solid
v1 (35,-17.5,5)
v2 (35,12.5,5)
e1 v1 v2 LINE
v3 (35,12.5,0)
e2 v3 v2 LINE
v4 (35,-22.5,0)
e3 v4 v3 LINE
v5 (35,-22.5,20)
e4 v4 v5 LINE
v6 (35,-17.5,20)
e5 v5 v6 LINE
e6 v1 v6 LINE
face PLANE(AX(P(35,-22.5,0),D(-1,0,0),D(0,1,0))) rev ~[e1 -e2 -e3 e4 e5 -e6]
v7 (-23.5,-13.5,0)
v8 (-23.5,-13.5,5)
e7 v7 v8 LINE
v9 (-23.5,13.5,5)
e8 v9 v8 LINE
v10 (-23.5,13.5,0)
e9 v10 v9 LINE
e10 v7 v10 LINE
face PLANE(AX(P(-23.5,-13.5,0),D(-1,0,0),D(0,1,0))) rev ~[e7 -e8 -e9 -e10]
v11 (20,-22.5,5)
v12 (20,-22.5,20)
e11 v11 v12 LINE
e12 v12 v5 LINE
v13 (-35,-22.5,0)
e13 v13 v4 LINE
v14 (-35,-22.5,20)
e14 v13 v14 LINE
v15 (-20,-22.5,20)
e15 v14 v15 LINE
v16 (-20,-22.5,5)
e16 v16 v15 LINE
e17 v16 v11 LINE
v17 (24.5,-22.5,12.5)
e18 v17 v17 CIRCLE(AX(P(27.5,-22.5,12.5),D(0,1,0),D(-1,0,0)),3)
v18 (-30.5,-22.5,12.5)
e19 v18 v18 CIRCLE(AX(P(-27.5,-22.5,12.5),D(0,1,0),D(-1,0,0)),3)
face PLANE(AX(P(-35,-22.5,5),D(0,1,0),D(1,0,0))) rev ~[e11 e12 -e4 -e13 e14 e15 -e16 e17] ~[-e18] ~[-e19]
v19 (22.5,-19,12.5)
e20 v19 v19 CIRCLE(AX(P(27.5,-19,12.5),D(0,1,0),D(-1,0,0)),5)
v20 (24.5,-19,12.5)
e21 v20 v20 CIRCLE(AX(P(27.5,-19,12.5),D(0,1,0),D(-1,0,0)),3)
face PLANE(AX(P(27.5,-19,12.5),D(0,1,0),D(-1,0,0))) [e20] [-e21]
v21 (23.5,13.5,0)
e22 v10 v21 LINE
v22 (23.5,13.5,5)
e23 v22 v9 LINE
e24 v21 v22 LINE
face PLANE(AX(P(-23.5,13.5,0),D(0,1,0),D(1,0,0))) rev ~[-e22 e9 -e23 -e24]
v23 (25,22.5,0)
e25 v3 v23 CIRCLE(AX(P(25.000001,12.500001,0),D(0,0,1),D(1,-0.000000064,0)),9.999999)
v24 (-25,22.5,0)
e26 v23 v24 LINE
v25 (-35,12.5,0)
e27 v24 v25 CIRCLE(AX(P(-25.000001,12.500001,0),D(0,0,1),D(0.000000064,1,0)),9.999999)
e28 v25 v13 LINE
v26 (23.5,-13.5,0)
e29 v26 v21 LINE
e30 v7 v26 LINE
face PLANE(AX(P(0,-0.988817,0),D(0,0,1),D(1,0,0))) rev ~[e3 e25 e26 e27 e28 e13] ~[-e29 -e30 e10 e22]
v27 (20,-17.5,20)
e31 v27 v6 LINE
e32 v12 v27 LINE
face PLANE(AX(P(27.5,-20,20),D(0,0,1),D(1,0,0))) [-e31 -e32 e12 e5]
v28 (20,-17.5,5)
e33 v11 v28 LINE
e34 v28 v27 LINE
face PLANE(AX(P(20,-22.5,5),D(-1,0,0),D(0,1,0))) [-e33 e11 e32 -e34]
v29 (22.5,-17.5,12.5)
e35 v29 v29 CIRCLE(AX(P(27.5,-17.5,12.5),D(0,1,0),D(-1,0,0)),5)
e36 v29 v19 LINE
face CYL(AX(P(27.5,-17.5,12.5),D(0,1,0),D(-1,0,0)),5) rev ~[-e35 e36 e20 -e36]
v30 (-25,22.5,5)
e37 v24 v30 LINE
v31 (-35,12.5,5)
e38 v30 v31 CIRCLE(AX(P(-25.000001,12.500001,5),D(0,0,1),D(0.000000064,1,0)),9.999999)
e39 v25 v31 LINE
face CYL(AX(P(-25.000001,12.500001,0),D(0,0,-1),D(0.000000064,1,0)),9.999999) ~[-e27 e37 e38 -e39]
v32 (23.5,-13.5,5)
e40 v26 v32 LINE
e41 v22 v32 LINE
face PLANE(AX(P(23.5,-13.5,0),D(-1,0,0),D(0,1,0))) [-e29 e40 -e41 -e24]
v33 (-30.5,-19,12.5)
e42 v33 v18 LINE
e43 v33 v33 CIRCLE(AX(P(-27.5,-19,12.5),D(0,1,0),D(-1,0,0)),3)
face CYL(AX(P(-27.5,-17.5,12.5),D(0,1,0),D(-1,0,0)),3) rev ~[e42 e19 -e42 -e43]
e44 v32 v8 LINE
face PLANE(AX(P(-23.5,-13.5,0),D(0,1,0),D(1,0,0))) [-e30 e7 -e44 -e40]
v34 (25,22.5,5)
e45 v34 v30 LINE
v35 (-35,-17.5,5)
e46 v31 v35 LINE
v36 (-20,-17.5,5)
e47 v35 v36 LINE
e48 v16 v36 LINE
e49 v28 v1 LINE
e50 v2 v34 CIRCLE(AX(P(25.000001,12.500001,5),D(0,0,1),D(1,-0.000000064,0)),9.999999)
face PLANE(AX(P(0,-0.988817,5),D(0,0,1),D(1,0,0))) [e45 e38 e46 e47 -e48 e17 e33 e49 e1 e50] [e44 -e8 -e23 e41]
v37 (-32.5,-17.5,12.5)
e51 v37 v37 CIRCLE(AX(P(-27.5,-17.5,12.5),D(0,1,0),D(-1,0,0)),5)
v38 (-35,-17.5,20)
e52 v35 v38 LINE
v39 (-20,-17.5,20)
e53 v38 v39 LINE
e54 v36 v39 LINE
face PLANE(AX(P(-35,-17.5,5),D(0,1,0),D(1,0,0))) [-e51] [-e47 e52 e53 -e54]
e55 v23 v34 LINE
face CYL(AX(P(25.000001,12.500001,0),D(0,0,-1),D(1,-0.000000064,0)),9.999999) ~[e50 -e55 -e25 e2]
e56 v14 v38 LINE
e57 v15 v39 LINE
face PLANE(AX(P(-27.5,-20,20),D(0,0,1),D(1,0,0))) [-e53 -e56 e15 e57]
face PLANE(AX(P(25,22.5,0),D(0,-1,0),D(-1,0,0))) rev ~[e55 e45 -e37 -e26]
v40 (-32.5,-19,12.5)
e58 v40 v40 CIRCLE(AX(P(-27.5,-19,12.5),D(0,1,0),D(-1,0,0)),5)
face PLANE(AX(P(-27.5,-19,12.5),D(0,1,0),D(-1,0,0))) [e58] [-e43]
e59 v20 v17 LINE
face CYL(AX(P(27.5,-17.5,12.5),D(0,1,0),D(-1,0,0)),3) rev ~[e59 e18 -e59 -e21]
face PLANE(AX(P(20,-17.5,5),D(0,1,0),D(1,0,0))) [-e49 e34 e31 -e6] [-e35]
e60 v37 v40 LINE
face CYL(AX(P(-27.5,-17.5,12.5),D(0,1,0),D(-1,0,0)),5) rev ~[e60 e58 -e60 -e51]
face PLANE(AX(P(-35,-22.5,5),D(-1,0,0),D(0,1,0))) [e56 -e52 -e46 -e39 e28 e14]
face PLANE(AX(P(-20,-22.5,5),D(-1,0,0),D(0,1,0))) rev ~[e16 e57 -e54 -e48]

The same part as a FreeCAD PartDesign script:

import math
import FreeCAD as App
import Part
import Sketcher


def add_polygon(sketch, points):
    """Adds a closed chain of lines whose ends are joined by coincident constraints."""
    first, n = sketch.GeometryCount, len(points)
    for a, b in zip(points, points[1:] + points[:1]):
        sketch.addGeometry(Part.LineSegment(App.Vector(*a, 0), App.Vector(*b, 0)), False)
    for i in range(n):
        sketch.addConstraint(Sketcher.Constraint("Coincident", first + i, 2, first + (i + 1) % n, 1))

doc = App.newDocument("Part")
body = doc.addObject("PartDesign::Body", "Body")

sketch1 = body.newObject("Sketcher::SketchObject", "Sketch")
sketch1.AttachmentSupport = (doc.getObject("XY_Plane"), [""])
sketch1.MapMode = "FlatFace"
sketch1.addGeometry([
    Part.LineSegment(App.Vector(-35, -22, 0), App.Vector(35, -22, 0)),
    Part.LineSegment(App.Vector(35, -22, 0), App.Vector(35, 12, 0)),
    Part.ArcOfCircle(Part.Circle(App.Vector(25, 13, 0), App.Vector(0, 0, 1), 10), math.radians(0), math.radians(90)),
    Part.LineSegment(App.Vector(25, 22, 0), App.Vector(-25, 22, 0)),
    Part.ArcOfCircle(Part.Circle(App.Vector(-25, 13, 0), App.Vector(0, 0, 1), 10), math.radians(90), math.radians(180)),
    Part.LineSegment(App.Vector(-35, 12, 0), App.Vector(-35, -22, 0)),
], False)
sketch1.addConstraint([
    Sketcher.Constraint("Coincident", 0, 2, 1, 1),
    Sketcher.Constraint("Tangent", 1, 2, 2, 1),
    Sketcher.Constraint("Tangent", 2, 2, 3, 1),
    Sketcher.Constraint("Tangent", 3, 2, 4, 1),
    Sketcher.Constraint("Tangent", 4, 2, 5, 1),
    Sketcher.Constraint("Coincident", 5, 2, 0, 1),
    Sketcher.Constraint("Horizontal", 0),
    Sketcher.Constraint("Vertical", 1),
    Sketcher.Constraint("Horizontal", 3),
    Sketcher.Constraint("Vertical", 5),
    Sketcher.Constraint("Equal", 2, 4),
    Sketcher.Constraint("Radius", 2, 9.999999),
    Sketcher.Constraint("DistanceX", 0, 1, 0, 2, 70.0),
    Sketcher.Constraint("DistanceY", 1, 1, 1, 2, 35.0),
    Sketcher.Constraint("DistanceX", -1, 1, 2, 3, 25.000001),
    Sketcher.Constraint("DistanceY", -1, 1, 2, 3, 12.500001),
])
pad1 = body.newObject("PartDesign::Pad", "Pad")
pad1.Profile = sketch1
pad1.Length = 5

sketch2 = body.newObject("Sketcher::SketchObject", "Sketch001")
sketch2.AttachmentSupport = (doc.getObject("XY_Plane"), [""])
sketch2.MapMode = "FlatFace"
add_polygon(sketch2, [(-24, 14), (-24, -14), (24, -14), (24, 14)])
sketch2.addConstraint([
    Sketcher.Constraint("Vertical", 0),
    Sketcher.Constraint("Horizontal", 1),
    Sketcher.Constraint("Vertical", 2),
    Sketcher.Constraint("Horizontal", 3),
    Sketcher.Constraint("Symmetric", 0, 2, 2, 2, -1, 1),
    Sketcher.Constraint("DistanceX", 1, 1, 1, 2, 47.0),
    Sketcher.Constraint("DistanceY", 0, 2, 0, 1, 27.0),
])
pocket1 = body.newObject("PartDesign::Pocket", "Pocket")
pocket1.Profile = sketch2
pocket1.Length = 25
pocket1.Reversed = True

sketch3 = body.newObject("Sketcher::SketchObject", "Sketch002")
sketch3.AttachmentSupport = (doc.getObject("XY_Plane"), [""])
sketch3.MapMode = "FlatFace"
sketch3.AttachmentOffset = App.Placement(App.Vector(0, 0, 5), App.Rotation())
add_polygon(sketch3, [(-35, -18), (-35, -22), (-20, -22), (-20, -18)])
add_polygon(sketch3, [(20, -18), (20, -22), (35, -22), (35, -18)])
sketch3.addConstraint([
    Sketcher.Constraint("Vertical", 0),
    Sketcher.Constraint("Horizontal", 1),
    Sketcher.Constraint("Vertical", 2),
    Sketcher.Constraint("Horizontal", 3),
    Sketcher.Constraint("Vertical", 4),
    Sketcher.Constraint("Horizontal", 5),
    Sketcher.Constraint("Vertical", 6),
    Sketcher.Constraint("Horizontal", 7),
    Sketcher.Constraint("Symmetric", 1, 2, 4, 2, -2),
    Sketcher.Constraint("Symmetric", 3, 2, 6, 2, -2),
    Sketcher.Constraint("DistanceX", 1, 1, 1, 2, 15.0),
    Sketcher.Constraint("DistanceY", 0, 2, 0, 1, 5.0),
    Sketcher.Constraint("DistanceX", 0, 2, -1, 1, 35.0),
    Sketcher.Constraint("DistanceY", 0, 2, -1, 1, 22.5),
])
pad2 = body.newObject("PartDesign::Pad", "Pad001")
pad2.Profile = sketch3
pad2.Length = 15

sketch4 = body.newObject("Sketcher::SketchObject", "Sketch003")
sketch4.AttachmentSupport = (doc.getObject("XZ_Plane"), [""])
sketch4.MapMode = "FlatFace"
sketch4.AttachmentOffset = App.Placement(App.Vector(0, 0, 17.5), App.Rotation())
sketch4.addGeometry([
    Part.Circle(App.Vector(-27.5, 12.5, 0), App.Vector(0, 0, 1), 3),
    Part.Circle(App.Vector(27.5, 12.5, 0), App.Vector(0, 0, 1), 3),
], False)
sketch4.addConstraint([
    Sketcher.Constraint("Equal", 0, 1),
    Sketcher.Constraint("Symmetric", 0, 3, 1, 3, -2),
    Sketcher.Constraint("Diameter", 0, 6.0),
    Sketcher.Constraint("DistanceX", 0, 3, 1, 3, 55.0),
    Sketcher.Constraint("DistanceY", -1, 1, 0, 3, 12.5),
])
pocket2 = body.newObject("PartDesign::Pocket", "Pocket001")
pocket2.Profile = sketch4
pocket2.Length = 25
pocket2.Reversed = True

sketch5 = body.newObject("Sketcher::SketchObject", "Sketch004")
sketch5.AttachmentSupport = (doc.getObject("XZ_Plane"), [""])
sketch5.MapMode = "FlatFace"
sketch5.AttachmentOffset = App.Placement(App.Vector(0, 0, 17.5), App.Rotation())
sketch5.addGeometry([
    Part.Circle(App.Vector(-27.5, 12.5, 0), App.Vector(0, 0, 1), 5),
    Part.Circle(App.Vector(-27.5, 12.5, 0), App.Vector(0, 0, 1), 3),
    Part.Circle(App.Vector(27.5, 12.5, 0), App.Vector(0, 0, 1), 5),
    Part.Circle(App.Vector(27.5, 12.5, 0), App.Vector(0, 0, 1), 3),
], False)
sketch5.addConstraint([
    Sketcher.Constraint("Coincident", 1, 3, 0, 3),
    Sketcher.Constraint("Coincident", 3, 3, 2, 3),
    Sketcher.Constraint("Equal", 0, 2),
    Sketcher.Constraint("Equal", 1, 3),
    Sketcher.Constraint("Symmetric", 0, 3, 2, 3, -2),
    Sketcher.Constraint("Diameter", 0, 10.0),
    Sketcher.Constraint("Diameter", 1, 6.0),
    Sketcher.Constraint("DistanceX", 0, 3, 2, 3, 55.0),
    Sketcher.Constraint("DistanceY", -1, 1, 0, 3, 12.5),
])
pocket3 = body.newObject("PartDesign::Pocket", "Pocket002")
pocket3.Profile = sketch5
pocket3.Length = 1.5
pocket3.Reversed = True

doc.recompute()
